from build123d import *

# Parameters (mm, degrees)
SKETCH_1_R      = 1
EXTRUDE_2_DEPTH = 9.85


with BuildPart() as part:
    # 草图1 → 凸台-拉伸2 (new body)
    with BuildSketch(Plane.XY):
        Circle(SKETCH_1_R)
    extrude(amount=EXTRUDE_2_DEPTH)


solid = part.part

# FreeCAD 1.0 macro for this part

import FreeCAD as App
import Part
import Sketcher
Q = App.Units.Quantity

doc = App.newDocument("Part")
body = doc.addObject("PartDesign::Body", "Body")

# Sketch on XY plane
sketch1 = body.newObject("Sketcher::SketchObject", "Sketch")
sketch1.AttachmentSupport = (doc.getObject("XY_Plane"), [""])
sketch1.MapMode = "FlatFace"
sketch1.addGeometry(Part.Circle(App.Vector(0, 0, 0), App.Vector(0, 0, 1), 1), False)
sketch1.addConstraint([
    Sketcher.Constraint("Coincident", 0, 3, -1, 1),
    Sketcher.Constraint("Diameter", 0, Q("2 mm")),
])
pad1 = body.newObject("PartDesign::Pad", "Pad")
pad1.Profile = sketch1
pad1.Length = 9.85

doc.recompute()
